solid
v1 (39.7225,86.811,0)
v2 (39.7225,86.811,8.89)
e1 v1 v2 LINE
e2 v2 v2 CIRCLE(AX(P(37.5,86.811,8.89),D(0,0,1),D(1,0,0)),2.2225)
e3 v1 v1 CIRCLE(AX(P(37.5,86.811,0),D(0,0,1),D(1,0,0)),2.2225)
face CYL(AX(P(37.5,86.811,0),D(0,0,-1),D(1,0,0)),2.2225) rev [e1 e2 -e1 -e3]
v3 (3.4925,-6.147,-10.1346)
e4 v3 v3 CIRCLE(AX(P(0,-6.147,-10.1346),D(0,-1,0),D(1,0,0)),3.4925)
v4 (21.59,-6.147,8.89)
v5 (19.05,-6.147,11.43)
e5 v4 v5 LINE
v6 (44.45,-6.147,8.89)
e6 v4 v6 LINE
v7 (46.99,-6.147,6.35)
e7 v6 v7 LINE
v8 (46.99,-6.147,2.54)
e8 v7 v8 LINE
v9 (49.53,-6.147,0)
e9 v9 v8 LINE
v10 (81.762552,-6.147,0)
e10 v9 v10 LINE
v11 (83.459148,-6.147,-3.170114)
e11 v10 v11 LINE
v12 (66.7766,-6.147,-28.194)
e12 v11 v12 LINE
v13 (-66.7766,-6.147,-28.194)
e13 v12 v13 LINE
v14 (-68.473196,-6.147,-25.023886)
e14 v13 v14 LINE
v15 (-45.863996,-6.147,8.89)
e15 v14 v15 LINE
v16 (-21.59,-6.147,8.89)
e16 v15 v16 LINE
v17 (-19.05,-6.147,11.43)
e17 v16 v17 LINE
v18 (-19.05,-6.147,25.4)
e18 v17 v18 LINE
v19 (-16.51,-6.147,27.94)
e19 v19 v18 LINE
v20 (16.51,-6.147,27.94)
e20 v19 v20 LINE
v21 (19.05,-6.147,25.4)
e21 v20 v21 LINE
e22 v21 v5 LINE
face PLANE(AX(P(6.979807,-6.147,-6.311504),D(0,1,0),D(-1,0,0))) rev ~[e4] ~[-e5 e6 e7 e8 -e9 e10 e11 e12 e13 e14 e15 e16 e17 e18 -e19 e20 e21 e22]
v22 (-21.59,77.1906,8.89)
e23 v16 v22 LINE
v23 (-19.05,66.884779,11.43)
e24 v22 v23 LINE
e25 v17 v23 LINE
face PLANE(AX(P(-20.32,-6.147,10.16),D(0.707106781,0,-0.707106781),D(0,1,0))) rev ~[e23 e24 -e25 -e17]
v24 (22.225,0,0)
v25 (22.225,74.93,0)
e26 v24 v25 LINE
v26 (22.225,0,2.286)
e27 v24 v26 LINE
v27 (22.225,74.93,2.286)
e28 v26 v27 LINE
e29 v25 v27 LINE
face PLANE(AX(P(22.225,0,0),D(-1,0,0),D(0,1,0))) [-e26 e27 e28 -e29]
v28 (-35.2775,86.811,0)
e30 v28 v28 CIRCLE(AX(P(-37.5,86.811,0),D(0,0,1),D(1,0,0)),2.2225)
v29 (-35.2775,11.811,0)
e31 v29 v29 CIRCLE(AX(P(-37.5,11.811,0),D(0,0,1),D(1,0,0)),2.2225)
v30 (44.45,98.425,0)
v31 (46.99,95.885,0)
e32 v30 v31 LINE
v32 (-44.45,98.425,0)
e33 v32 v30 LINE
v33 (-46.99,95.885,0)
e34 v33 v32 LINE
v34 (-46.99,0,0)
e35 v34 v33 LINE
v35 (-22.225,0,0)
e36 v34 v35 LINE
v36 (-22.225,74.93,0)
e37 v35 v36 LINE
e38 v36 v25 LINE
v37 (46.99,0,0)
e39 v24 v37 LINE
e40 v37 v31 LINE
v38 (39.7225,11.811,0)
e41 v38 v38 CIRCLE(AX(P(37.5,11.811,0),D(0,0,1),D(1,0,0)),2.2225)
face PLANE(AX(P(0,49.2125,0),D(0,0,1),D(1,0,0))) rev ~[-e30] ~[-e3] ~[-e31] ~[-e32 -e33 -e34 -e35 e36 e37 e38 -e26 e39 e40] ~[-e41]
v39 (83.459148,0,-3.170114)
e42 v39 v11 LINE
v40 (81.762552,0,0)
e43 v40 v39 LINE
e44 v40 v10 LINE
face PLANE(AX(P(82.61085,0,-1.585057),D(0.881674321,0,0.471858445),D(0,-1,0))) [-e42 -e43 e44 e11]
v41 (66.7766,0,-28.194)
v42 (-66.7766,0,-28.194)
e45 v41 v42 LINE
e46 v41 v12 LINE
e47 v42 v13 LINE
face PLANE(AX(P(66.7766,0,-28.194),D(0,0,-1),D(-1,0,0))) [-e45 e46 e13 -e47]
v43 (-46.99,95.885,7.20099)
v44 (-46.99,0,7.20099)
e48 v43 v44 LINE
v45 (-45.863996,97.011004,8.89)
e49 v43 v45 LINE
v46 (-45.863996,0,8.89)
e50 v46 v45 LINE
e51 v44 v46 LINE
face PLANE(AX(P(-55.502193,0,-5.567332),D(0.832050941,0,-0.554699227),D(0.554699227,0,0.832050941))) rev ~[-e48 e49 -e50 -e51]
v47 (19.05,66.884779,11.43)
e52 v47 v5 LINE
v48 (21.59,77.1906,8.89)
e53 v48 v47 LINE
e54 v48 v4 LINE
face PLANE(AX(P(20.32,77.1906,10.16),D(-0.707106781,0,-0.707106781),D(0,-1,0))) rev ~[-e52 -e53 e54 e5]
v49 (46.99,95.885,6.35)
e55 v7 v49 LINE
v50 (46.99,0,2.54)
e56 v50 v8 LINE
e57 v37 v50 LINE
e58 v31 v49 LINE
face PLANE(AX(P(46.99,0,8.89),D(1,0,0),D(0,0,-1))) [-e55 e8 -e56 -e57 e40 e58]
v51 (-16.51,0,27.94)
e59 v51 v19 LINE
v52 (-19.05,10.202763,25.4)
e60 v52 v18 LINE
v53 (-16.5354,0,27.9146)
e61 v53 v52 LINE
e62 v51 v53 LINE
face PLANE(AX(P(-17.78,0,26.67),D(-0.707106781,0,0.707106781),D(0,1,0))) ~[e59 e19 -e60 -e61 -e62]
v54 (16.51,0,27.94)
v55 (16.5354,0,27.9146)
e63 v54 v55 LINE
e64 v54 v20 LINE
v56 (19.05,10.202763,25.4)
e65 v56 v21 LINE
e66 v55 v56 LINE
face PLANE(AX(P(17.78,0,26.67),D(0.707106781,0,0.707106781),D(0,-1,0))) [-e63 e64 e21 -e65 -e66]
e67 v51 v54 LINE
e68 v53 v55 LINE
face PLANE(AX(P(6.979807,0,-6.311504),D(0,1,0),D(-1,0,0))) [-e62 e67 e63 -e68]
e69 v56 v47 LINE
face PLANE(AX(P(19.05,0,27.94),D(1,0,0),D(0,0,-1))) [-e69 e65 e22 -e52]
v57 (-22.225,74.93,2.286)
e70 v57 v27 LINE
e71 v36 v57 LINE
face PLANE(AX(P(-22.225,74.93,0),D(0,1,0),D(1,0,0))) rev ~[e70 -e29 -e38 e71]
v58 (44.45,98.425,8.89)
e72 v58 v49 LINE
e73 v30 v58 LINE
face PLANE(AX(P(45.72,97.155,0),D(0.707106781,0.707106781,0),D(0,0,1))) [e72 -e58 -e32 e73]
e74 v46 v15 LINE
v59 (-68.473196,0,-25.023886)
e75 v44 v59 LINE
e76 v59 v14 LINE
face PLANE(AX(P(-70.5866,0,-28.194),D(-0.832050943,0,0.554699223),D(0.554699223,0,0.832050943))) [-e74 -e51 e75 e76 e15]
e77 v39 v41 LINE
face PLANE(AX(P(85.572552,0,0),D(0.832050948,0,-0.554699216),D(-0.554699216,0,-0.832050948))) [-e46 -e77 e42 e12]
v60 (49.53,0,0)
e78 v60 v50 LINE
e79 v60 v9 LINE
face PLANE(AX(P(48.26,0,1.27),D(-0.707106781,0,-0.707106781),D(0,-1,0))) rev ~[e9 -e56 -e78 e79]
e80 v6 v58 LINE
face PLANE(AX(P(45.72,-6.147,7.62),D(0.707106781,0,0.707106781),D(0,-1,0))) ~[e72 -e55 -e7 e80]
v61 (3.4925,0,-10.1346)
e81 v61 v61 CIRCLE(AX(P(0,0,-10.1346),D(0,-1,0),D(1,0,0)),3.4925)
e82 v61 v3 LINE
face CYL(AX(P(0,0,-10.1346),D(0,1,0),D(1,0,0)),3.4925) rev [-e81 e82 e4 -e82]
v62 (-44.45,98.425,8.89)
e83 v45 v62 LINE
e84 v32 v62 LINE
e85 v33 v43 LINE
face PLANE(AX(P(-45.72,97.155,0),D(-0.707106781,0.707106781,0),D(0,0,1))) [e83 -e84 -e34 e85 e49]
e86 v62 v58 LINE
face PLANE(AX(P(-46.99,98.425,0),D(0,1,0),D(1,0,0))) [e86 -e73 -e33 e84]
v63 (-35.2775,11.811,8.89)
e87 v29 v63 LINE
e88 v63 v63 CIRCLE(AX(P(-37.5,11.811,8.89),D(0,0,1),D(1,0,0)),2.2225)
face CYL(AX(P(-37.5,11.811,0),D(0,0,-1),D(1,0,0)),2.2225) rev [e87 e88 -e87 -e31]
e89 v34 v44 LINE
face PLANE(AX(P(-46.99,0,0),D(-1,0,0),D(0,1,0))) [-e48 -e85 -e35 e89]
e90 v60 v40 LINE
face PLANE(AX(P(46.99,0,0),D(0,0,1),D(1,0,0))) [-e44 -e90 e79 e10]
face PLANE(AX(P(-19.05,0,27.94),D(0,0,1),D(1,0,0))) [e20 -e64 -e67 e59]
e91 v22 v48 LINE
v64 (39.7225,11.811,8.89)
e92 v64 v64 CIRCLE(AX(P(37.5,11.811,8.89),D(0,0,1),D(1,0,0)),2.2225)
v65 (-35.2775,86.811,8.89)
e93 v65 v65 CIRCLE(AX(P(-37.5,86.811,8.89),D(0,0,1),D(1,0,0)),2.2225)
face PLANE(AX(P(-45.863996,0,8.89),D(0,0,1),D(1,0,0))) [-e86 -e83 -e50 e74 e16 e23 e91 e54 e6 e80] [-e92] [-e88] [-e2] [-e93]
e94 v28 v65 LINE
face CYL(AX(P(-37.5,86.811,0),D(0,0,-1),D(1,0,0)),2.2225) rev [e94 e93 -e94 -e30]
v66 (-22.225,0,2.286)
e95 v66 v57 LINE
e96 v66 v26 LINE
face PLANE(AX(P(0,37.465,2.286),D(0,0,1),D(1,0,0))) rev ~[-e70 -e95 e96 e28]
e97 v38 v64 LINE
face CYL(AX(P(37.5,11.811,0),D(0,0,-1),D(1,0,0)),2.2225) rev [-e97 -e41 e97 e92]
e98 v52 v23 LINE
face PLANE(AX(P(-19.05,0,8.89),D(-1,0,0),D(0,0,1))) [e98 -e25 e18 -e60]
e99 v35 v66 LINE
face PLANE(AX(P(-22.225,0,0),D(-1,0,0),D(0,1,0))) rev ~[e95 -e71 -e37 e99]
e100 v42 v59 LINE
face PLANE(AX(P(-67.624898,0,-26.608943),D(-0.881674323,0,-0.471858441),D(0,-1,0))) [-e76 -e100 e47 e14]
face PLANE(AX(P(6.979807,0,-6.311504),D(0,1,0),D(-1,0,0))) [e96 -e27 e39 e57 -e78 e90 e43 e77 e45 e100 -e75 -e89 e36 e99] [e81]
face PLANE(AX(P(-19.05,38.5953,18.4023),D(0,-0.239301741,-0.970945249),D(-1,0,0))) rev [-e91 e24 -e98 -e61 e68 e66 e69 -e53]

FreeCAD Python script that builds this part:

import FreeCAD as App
import Part
import Sketcher
from FreeCAD import Vector
Q = App.Units.Quantity


def edges_at(feature, points):
    """Names of the edges that pass closest to the given points."""
    edges = feature.Shape.Edges
    near = lambda p: min(range(len(edges)), key=lambda i: edges[i].distToShape(Part.Vertex(*p))[0])
    return sorted({f"Edge{near(p) + 1}" for p in points})

doc = App.newDocument("Part")
params = doc.addObject("Spreadsheet::Sheet", "Params")
for row, (alias, value) in enumerate([
    ("sketch1_diameter", "0.175 in"),
    ("sketch1_width", "3.7 in"),
    ("sketch1_height", "3.875 in"),
    ("pad1_length", "0.35 in"),
    ("sketch2_width", "1.75 in"),
    ("sketch2_height", "2.95 in"),
    ("pocket1_length", "0.09 in"),
    ("sketch3_diameter", "0.275 in"),
    ("sketch3_width", "1.1 in"),
    ("sketch3_width2", "1.5 in"),
    ("sketch3_height", "0.75 in"),
    ("sketch3_height2", "0.35 in"),
    ("pad2_length", "6.147 mm"),
    ("chamfer_size", "0.15 in"),
    ("chamfer2_size", "0.749 in"),
    ("chamfer2_size2", "3.039 in"),
    ("chamfer3_size", "0.1 in"),
], start=1):
    params.set(f"A{row}", alias)
    params.set(f"B{row}", "=" + value)
    params.setAlias(f"B{row}", alias)

body = doc.addObject("PartDesign::Body", "Body")

# Sketch on XY plane
sketch1 = body.newObject("Sketcher::SketchObject", "Sketch")
sketch1.AttachmentSupport = (doc.getObject("XY_Plane"), [""])
sketch1.MapMode = "FlatFace"
sketch1.addGeometry(Part.LineSegment(Vector(-47, 98.4, 0), Vector(-47, 0, 0)), False)
sketch1.addGeometry(Part.LineSegment(Vector(-47, 0, 0), Vector(47, 0, 0)), False)
sketch1.addGeometry(Part.LineSegment(Vector(47, 0, 0), Vector(47, 98.4, 0)), False)
sketch1.addGeometry(Part.LineSegment(Vector(47, 98.4, 0), Vector(-47, 98.4, 0)), False)
sketch1.addGeometry(Part.Circle(Vector(-37.5, 11.8, 0), Vector(0, 0, 1), 2.2), False)
sketch1.addGeometry(Part.Circle(Vector(37.5, 11.8, 0), Vector(0, 0, 1), 2.2), False)
sketch1.addGeometry(Part.Circle(Vector(-37.5, 86.8, 0), Vector(0, 0, 1), 2.2), False)
sketch1.addGeometry(Part.Circle(Vector(37.5, 86.8, 0), Vector(0, 0, 1), 2.2), False)
sketch1.addConstraint(Sketcher.Constraint("Coincident", 0, 2, 1, 1))
sketch1.addConstraint(Sketcher.Constraint("Coincident", 1, 2, 2, 1))
sketch1.addConstraint(Sketcher.Constraint("Coincident", 2, 2, 3, 1))
sketch1.addConstraint(Sketcher.Constraint("Coincident", 3, 2, 0, 1))
sketch1.addConstraint(Sketcher.Constraint("Vertical", 0))
sketch1.addConstraint(Sketcher.Constraint("Horizontal", 1))
sketch1.addConstraint(Sketcher.Constraint("Vertical", 2))
sketch1.addConstraint(Sketcher.Constraint("Horizontal", 3))
sketch1.addConstraint(Sketcher.Constraint("Equal", 4, 5))
sketch1.addConstraint(Sketcher.Constraint("Equal", 5, 6))
sketch1.addConstraint(Sketcher.Constraint("Equal", 6, 7))
sketch1.addConstraint(Sketcher.Constraint("Symmetric", 0, 2, 1, 2, -1, 1))
sketch1.addConstraint(Sketcher.Constraint("Symmetric", 4, 3, 5, 3, -2))
sketch1.addConstraint(Sketcher.Constraint("Symmetric", 6, 3, 7, 3, -2))
sketch1.addConstraint(Sketcher.Constraint("Vertical", 4, 3, 6, 3))
sketch1.addConstraint(Sketcher.Constraint("Diameter", 4, Q("0.175 in")))
sketch1.addConstraint(Sketcher.Constraint("DistanceX", 1, 1, 1, 2, Q("3.7 in")))
sketch1.addConstraint(Sketcher.Constraint("DistanceY", 0, 2, 0, 1, Q("3.875 in")))
sketch1.addConstraint(Sketcher.Constraint("DistanceY", 5, 3, 2, 2, Q("3.41 in")))
sketch1.addConstraint(Sketcher.Constraint("DistanceX", 4, 3, -1, 1, 37.5))
sketch1.addConstraint(Sketcher.Constraint("DistanceY", -1, 1, 6, 3, 86.811))
sketch1.setExpression("Constraints[15]", "Params.sketch1_diameter")
sketch1.setExpression("Constraints[16]", "Params.sketch1_width")
sketch1.setExpression("Constraints[17]", "Params.sketch1_height")
pad1 = body.newObject("PartDesign::Pad", "Pad")
pad1.Profile = sketch1
pad1.setExpression("Length", "Params.pad1_length")

# Sketch on XY plane
sketch2 = body.newObject("Sketcher::SketchObject", "Sketch001")
sketch2.AttachmentSupport = (doc.getObject("XY_Plane"), [""])
sketch2.MapMode = "FlatFace"
sketch2.addGeometry(Part.LineSegment(Vector(-22, 75, 0), Vector(-22, 0, 0)), False)
sketch2.addGeometry(Part.LineSegment(Vector(-22, 0, 0), Vector(22, 0, 0)), False)
sketch2.addGeometry(Part.LineSegment(Vector(22, 0, 0), Vector(22, 75, 0)), False)
sketch2.addGeometry(Part.LineSegment(Vector(22, 75, 0), Vector(-22, 75, 0)), False)
sketch2.addConstraint(Sketcher.Constraint("Coincident", 0, 2, 1, 1))
sketch2.addConstraint(Sketcher.Constraint("Coincident", 1, 2, 2, 1))
sketch2.addConstraint(Sketcher.Constraint("Coincident", 2, 2, 3, 1))
sketch2.addConstraint(Sketcher.Constraint("Coincident", 3, 2, 0, 1))
sketch2.addConstraint(Sketcher.Constraint("Vertical", 0))
sketch2.addConstraint(Sketcher.Constraint("Horizontal", 1))
sketch2.addConstraint(Sketcher.Constraint("Vertical", 2))
sketch2.addConstraint(Sketcher.Constraint("Horizontal", 3))
sketch2.addConstraint(Sketcher.Constraint("Symmetric", 0, 2, 1, 2, -1, 1))
sketch2.addConstraint(Sketcher.Constraint("DistanceX", 1, 1, 1, 2, Q("1.75 in")))
sketch2.addConstraint(Sketcher.Constraint("DistanceY", 0, 2, 0, 1, Q("2.95 in")))
sketch2.setExpression("Constraints[9]", "Params.sketch2_width")
sketch2.setExpression("Constraints[10]", "Params.sketch2_height")
pocket1 = body.newObject("PartDesign::Pocket", "Pocket")
pocket1.Profile = sketch2
pocket1.setExpression("Length", "Params.pocket1_length")
pocket1.Reversed = True

# Sketch on XZ plane
sketch3 = body.newObject("Sketcher::SketchObject", "Sketch002")
sketch3.AttachmentSupport = (doc.getObject("XZ_Plane"), [""])
sketch3.MapMode = "FlatFace"
sketch3.addGeometry(Part.LineSegment(Vector(-19.1, 27.9, 0), Vector(-19.1, 8.9, 0)), False)
sketch3.addGeometry(Part.LineSegment(Vector(-19.1, 8.9, 0), Vector(-45.9, 8.9, 0)), False)
sketch3.addGeometry(Part.LineSegment(Vector(-45.9, 8.9, 0), Vector(-70.6, -28.2, 0)), False)
sketch3.addGeometry(Part.LineSegment(Vector(-70.6, -28.2, 0), Vector(66.8, -28.2, 0)), False)
sketch3.addGeometry(Part.LineSegment(Vector(66.8, -28.2, 0), Vector(85.6, 0, 0)), False)
sketch3.addGeometry(Part.LineSegment(Vector(85.6, 0, 0), Vector(47, 0, 0)), False)
sketch3.addGeometry(Part.LineSegment(Vector(47, 0, 0), Vector(47, 8.9, 0)), False)
sketch3.addGeometry(Part.LineSegment(Vector(47, 8.9, 0), Vector(19.1, 8.9, 0)), False)
sketch3.addGeometry(Part.LineSegment(Vector(19.1, 8.9, 0), Vector(19.1, 27.9, 0)), False)
sketch3.addGeometry(Part.LineSegment(Vector(19.1, 27.9, 0), Vector(-19.1, 27.9, 0)), False)
sketch3.addGeometry(Part.Circle(Vector(0, -10.1, 0), Vector(0, 0, 1), 3.5), False)
sketch3.addConstraint(Sketcher.Constraint("Coincident", 0, 2, 1, 1))
sketch3.addConstraint(Sketcher.Constraint("Coincident", 1, 2, 2, 1))
sketch3.addConstraint(Sketcher.Constraint("Coincident", 2, 2, 3, 1))
sketch3.addConstraint(Sketcher.Constraint("Coincident", 3, 2, 4, 1))
sketch3.addConstraint(Sketcher.Constraint("Coincident", 4, 2, 5, 1))
sketch3.addConstraint(Sketcher.Constraint("Coincident", 5, 2, 6, 1))
sketch3.addConstraint(Sketcher.Constraint("Coincident", 6, 2, 7, 1))
sketch3.addConstraint(Sketcher.Constraint("Coincident", 7, 2, 8, 1))
sketch3.addConstraint(Sketcher.Constraint("Coincident", 8, 2, 9, 1))
sketch3.addConstraint(Sketcher.Constraint("Coincident", 9, 2, 0, 1))
sketch3.addConstraint(Sketcher.Constraint("Vertical", 0))
sketch3.addConstraint(Sketcher.Constraint("Horizontal", 1))
sketch3.addConstraint(Sketcher.Constraint("Horizontal", 3))
sketch3.addConstraint(Sketcher.Constraint("Horizontal", 5))
sketch3.addConstraint(Sketcher.Constraint("Vertical", 6))
sketch3.addConstraint(Sketcher.Constraint("Horizontal", 7))
sketch3.addConstraint(Sketcher.Constraint("Vertical", 8))
sketch3.addConstraint(Sketcher.Constraint("Horizontal", 9))
sketch3.addConstraint(Sketcher.Constraint("Symmetric", 0, 2, 7, 2, -2))
sketch3.addConstraint(Sketcher.Constraint("PointOnObject", 10, 3, -2))
sketch3.addConstraint(Sketcher.Constraint("PointOnObject", 4, 2, -1))
sketch3.addConstraint(Sketcher.Constraint("Parallel", 2, 4))
sketch3.addConstraint(Sketcher.Constraint("Diameter", 10, Q("0.275 in")))
sketch3.addConstraint(Sketcher.Constraint("DistanceX", 7, 2, 7, 1, Q("1.1 in")))
sketch3.addConstraint(Sketcher.Constraint("DistanceX", 9, 2, 9, 1, Q("1.5 in")))
sketch3.addConstraint(Sketcher.Constraint("DistanceY", 0, 2, 0, 1, Q("0.75 in")))
sketch3.addConstraint(Sketcher.Constraint("DistanceY", 6, 1, 6, 2, Q("0.35 in")))
sketch3.addConstraint(Sketcher.Constraint("DistanceX", 3, 1, 3, 2, Q("5.408 in")))
sketch3.addConstraint(Sketcher.Constraint("DistanceY", 2, 2, -1, 1, Q("1.11 in")))
sketch3.addConstraint(Sketcher.Constraint("Angle", 2, Q("-123.69 deg")))
sketch3.addConstraint(Sketcher.Constraint("DistanceY", 10, 3, -1, 1, Q("0.399 in")))
sketch3.addConstraint(Sketcher.Constraint("DistanceX", 2, 2, -1, 1, Q("2.779 in")))
sketch3.setExpression("Constraints[22]", "Params.sketch3_diameter")
sketch3.setExpression("Constraints[23]", "Params.sketch3_width")
sketch3.setExpression("Constraints[24]", "Params.sketch3_width2")
sketch3.setExpression("Constraints[25]", "Params.sketch3_height")
sketch3.setExpression("Constraints[26]", "Params.sketch3_height2")
pad2 = body.newObject("PartDesign::Pad", "Pad001")
pad2.Profile = sketch3
pad2.setExpression("Length", "Params.pad2_length")

# Sketch on XZ plane
sketch4 = body.newObject("Sketcher::SketchObject", "Sketch003")
sketch4.AttachmentSupport = (doc.getObject("XZ_Plane"), [""])
sketch4.MapMode = "FlatFace"
sketch4.addGeometry(Part.LineSegment(Vector(-46, 9, 0), Vector(-46, 18, 0)), False)
sketch4.addGeometry(Part.LineSegment(Vector(-46, 18, 0), Vector(-56, 18, 0)), False)
sketch4.addGeometry(Part.LineSegment(Vector(-56, 18, 0), Vector(-56, -6, 0)), False)
sketch4.addGeometry(Part.LineSegment(Vector(-56, -6, 0), Vector(-46, 9, 0)), False)
sketch4.addConstraint(Sketcher.Constraint("Coincident", 0, 2, 1, 1))
sketch4.addConstraint(Sketcher.Constraint("Coincident", 1, 2, 2, 1))
sketch4.addConstraint(Sketcher.Constraint("Coincident", 2, 2, 3, 1))
sketch4.addConstraint(Sketcher.Constraint("Coincident", 3, 2, 0, 1))
sketch4.addConstraint(Sketcher.Constraint("Vertical", 0))
sketch4.addConstraint(Sketcher.Constraint("Horizontal", 1))
sketch4.addConstraint(Sketcher.Constraint("Vertical", 2))
sketch4.addConstraint(Sketcher.Constraint("DistanceY", -1, 1, 3, 2, Q("0.35 in")))
sketch4.addConstraint(Sketcher.Constraint("Angle", 3, Q("56.309999 deg")))
sketch4.addConstraint(Sketcher.Constraint("DistanceY", 0, 1, 0, 2, 9.470811))
sketch4.addConstraint(Sketcher.Constraint("DistanceX", 1, 2, 1, 1, 9.638197))
sketch4.addConstraint(Sketcher.Constraint("DistanceX", 0, 2, -1, 1, 45.863996))
pocket2 = body.newObject("PartDesign::Pocket", "Pocket001")
pocket2.Profile = sketch4
pocket2.Type = "ThroughAll"
doc.recompute()

chamfer = body.newObject("PartDesign::Chamfer", "Chamfer")
chamfer.Base = (pocket2, edges_at(pocket2, [(-70.587, -3.074, -28.194), (85.573, -3.074, 0)]))
chamfer.setExpression("Size", "Params.chamfer_size")
doc.recompute()

chamfer2 = body.newObject("PartDesign::Chamfer", "Chamfer001")
chamfer2.Base = (chamfer, edges_at(chamfer, [(0, 0, 8.89)]))
chamfer2.ChamferType = "Two distances"
chamfer2.setExpression("Size", "Params.chamfer2_size")
chamfer2.setExpression("Size2", "Params.chamfer2_size2")
chamfer2.FlipDirection = True
doc.recompute()

chamfer3 = body.newObject("PartDesign::Chamfer", "Chamfer002")
chamfer3.Base = (chamfer2, edges_at(chamfer2, [
    (-19.05, 35.522, 8.89),
    (-19.05, 35.522, 8.89),
    (-46.99, 98.425, 3.6),
    (46.99, 98.425, 4.445),
    (19.05, 35.522, 8.89),
    (19.05, 35.522, 8.89),
    (19.05, -3.074, 27.94),
    (-19.05, -3.074, 27.94),
    (46.99, 46.139, 8.89),
    (46.99, -3.074, 0),
]))
chamfer3.setExpression("Size", "Params.chamfer3_size")

doc.recompute()
